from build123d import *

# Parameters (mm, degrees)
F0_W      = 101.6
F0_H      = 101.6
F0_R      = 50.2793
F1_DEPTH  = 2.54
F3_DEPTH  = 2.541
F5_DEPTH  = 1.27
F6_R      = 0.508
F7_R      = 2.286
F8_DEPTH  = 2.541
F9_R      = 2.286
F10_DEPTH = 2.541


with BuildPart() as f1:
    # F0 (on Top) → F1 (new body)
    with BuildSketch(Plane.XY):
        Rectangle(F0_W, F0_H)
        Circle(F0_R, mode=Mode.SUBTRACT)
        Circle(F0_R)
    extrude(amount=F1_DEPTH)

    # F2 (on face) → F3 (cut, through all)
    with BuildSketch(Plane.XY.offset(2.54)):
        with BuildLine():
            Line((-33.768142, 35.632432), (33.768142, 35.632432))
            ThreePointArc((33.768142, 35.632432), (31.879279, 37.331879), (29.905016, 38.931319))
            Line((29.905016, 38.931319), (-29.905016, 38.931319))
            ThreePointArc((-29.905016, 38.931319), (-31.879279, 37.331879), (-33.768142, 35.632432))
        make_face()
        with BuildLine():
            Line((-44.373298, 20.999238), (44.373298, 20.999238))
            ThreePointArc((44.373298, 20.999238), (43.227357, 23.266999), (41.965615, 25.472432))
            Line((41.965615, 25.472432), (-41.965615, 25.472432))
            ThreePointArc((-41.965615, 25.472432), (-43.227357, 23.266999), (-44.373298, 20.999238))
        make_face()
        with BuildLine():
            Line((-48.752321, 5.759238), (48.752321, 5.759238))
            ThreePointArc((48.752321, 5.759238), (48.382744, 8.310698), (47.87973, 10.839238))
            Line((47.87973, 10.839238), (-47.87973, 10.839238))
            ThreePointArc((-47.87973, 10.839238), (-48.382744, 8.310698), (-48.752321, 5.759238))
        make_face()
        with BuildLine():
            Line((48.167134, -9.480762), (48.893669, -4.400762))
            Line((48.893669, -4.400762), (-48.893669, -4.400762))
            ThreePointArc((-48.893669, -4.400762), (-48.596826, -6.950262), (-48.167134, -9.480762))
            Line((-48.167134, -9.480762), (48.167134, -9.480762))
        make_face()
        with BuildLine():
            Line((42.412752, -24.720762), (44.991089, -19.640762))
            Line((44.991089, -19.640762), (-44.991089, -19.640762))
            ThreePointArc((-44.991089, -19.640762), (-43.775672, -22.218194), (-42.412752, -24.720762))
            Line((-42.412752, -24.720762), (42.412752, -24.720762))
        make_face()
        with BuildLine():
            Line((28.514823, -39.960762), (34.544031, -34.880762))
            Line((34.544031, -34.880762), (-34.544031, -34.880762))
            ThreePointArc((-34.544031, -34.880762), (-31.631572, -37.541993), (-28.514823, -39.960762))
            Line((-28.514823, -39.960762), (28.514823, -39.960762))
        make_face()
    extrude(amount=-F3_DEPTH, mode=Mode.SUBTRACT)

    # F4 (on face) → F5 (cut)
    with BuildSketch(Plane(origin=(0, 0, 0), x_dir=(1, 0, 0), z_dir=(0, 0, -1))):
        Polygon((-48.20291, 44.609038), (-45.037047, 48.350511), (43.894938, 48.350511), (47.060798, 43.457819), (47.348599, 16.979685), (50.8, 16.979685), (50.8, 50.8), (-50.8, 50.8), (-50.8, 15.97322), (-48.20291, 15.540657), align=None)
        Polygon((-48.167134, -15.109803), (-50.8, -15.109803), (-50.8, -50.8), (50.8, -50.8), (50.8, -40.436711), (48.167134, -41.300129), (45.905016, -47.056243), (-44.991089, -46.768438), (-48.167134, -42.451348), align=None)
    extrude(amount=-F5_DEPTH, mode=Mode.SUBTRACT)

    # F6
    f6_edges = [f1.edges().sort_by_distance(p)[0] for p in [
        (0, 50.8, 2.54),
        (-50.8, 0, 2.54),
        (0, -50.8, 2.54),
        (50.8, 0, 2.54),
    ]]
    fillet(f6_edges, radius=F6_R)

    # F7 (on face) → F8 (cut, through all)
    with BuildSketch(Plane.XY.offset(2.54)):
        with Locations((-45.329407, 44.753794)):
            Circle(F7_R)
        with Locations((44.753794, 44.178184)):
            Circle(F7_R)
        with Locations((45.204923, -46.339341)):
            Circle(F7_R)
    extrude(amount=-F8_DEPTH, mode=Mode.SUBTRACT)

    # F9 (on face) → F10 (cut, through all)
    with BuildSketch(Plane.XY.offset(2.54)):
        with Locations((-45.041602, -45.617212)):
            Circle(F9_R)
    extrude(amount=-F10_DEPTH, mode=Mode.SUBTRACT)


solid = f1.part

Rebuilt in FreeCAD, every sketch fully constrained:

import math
import FreeCAD as App
import Part
import Sketcher
from FreeCAD import Vector
Q = App.Units.Quantity


def edges_at(feature, points):
    """Names of the edges that pass closest to the given points."""
    edges = feature.Shape.Edges
    near = lambda p: min(range(len(edges)), key=lambda i: edges[i].distToShape(Part.Vertex(*p))[0])
    return sorted({f"Edge{near(p) + 1}" for p in points})

doc = App.newDocument("Part")
body = doc.addObject("PartDesign::Body", "Body")

sketch1 = body.newObject("Sketcher::SketchObject", "Sketch")
sketch1.AttachmentSupport = (doc.getObject("XY_Plane"), [""])
sketch1.MapMode = "FlatFace"
sketch1.addGeometry([
    Part.LineSegment(Vector(-51, 51, 0), Vector(-51, -51, 0)),
    Part.LineSegment(Vector(-51, -51, 0), Vector(51, -51, 0)),
    Part.LineSegment(Vector(51, -51, 0), Vector(51, 51, 0)),
    Part.LineSegment(Vector(51, 51, 0), Vector(-51, 51, 0)),
], False)
sketch1.addConstraint([
    Sketcher.Constraint("Coincident", 0, 2, 1, 1),
    Sketcher.Constraint("Coincident", 1, 2, 2, 1),
    Sketcher.Constraint("Coincident", 2, 2, 3, 1),
    Sketcher.Constraint("Coincident", 3, 2, 0, 1),
    Sketcher.Constraint("Vertical", 0),
    Sketcher.Constraint("Horizontal", 1),
    Sketcher.Constraint("Vertical", 2),
    Sketcher.Constraint("Horizontal", 3),
    Sketcher.Constraint("Symmetric", 0, 2, 2, 2, -1, 1),
    Sketcher.Constraint("Equal", 3, 0),
    Sketcher.Constraint("DistanceX", 1, 1, 1, 2, Q("4 in")),
])
pad1 = body.newObject("PartDesign::Pad", "Pad")
pad1.Profile = sketch1
pad1.Length = Q("0.1 in")

sketch2 = body.newObject("Sketcher::SketchObject", "Sketch001")
sketch2.AttachmentSupport = (doc.getObject("XY_Plane"), [""])
sketch2.MapMode = "FlatFace"
sketch2.AttachmentOffset = App.Placement(Vector(0, 0, 0.1 * 25.4), App.Rotation())
sketch2.addGeometry([
    Part.LineSegment(Vector(-33.768142, 35.632432, 0), Vector(33.768142, 35.632432, 0)),
    Part.ArcOfCircle(Part.Circle(Vector(0.000085, 0.000093, 0), Vector(0, 0, 1), 49.091194), math.radians(46.538749), math.radians(52.470415)),
    Part.LineSegment(Vector(29.905016, 38.931319, 0), Vector(-29.905016, 38.931319, 0)),
    Part.ArcOfCircle(Part.Circle(Vector(-0.000085, 0.000093, 0), Vector(0, 0, 1), 49.091194), math.radians(127.529585), math.radians(133.461251)),
    Part.LineSegment(Vector(-44.373298, 20.999238, 0), Vector(44.373298, 20.999238, 0)),
    Part.ArcOfCircle(Part.Circle(Vector(0.000215, 0.000123, 0), Vector(0, 0, 1), 49.091072), math.radians(25.325383), math.radians(31.257064)),
    Part.LineSegment(Vector(41.965615, 25.472432, 0), Vector(-41.965615, 25.472432, 0)),
    Part.ArcOfCircle(Part.Circle(Vector(-0.000215, 0.000123, 0), Vector(0, 0, 1), 49.091072), math.radians(148.742936), math.radians(154.674617)),
    Part.LineSegment(Vector(-48.752321, 5.759238, 0), Vector(48.752321, 5.759238, 0)),
    Part.ArcOfCircle(Part.Circle(Vector(-0.000051, -0.000009, 0), Vector(0, 0, 1), 49.091371), math.radians(6.737278), math.radians(12.755872)),
    Part.LineSegment(Vector(47.87973, 10.839238, 0), Vector(-47.87973, 10.839238, 0)),
    Part.ArcOfCircle(Part.Circle(Vector(0.000051, -0.000009, 0), Vector(0, 0, 1), 49.091371), math.radians(167.244128), math.radians(173.262722)),
    Part.LineSegment(Vector(48.167134, -9.480762, 0), Vector(48.893669, -4.400762, 0)),
    Part.LineSegment(Vector(48.893669, -4.400762, 0), Vector(-48.893669, -4.400762, 0)),
    Part.ArcOfCircle(Part.Circle(Vector(-0.000213, -0.000037, 0), Vector(0, 0, 1), 49.091103), math.radians(-174.856871), math.radians(-168.864782)),
    Part.LineSegment(Vector(-48.167134, -9.480762, 0), Vector(48.167134, -9.480762, 0)),
    Part.LineSegment(Vector(42.412752, -24.720762, 0), Vector(44.991089, -19.640762, 0)),
    Part.LineSegment(Vector(44.991089, -19.640762, 0), Vector(-44.991089, -19.640762, 0)),
    Part.ArcOfCircle(Part.Circle(Vector(0.000054, 0.000029, 0), Vector(0, 0, 1), 49.09138), math.radians(-156.416424), math.radians(-149.763738)),
    Part.LineSegment(Vector(-42.412752, -24.720762, 0), Vector(42.412752, -24.720762, 0)),
    Part.LineSegment(Vector(28.514823, -39.960762, 0), Vector(34.544031, -34.880762, 0)),
    Part.LineSegment(Vector(34.544031, -34.880762, 0), Vector(-34.544031, -34.880762, 0)),
    Part.ArcOfCircle(Part.Circle(Vector(0.000096, 0.000114, 0), Vector(0, 0, 1), 49.091468), math.radians(-134.722086), math.radians(-125.51055)),
    Part.LineSegment(Vector(-28.514823, -39.960762, 0), Vector(28.514823, -39.960762, 0)),
], False)
sketch2.addConstraint([
    Sketcher.Constraint("Coincident", 0, 2, 1, 1),
    Sketcher.Constraint("Coincident", 1, 2, 2, 1),
    Sketcher.Constraint("Coincident", 2, 2, 3, 1),
    Sketcher.Constraint("Coincident", 3, 2, 0, 1),
    Sketcher.Constraint("Coincident", 4, 2, 5, 1),
    Sketcher.Constraint("Coincident", 5, 2, 6, 1),
    Sketcher.Constraint("Coincident", 6, 2, 7, 1),
    Sketcher.Constraint("Coincident", 7, 2, 4, 1),
    Sketcher.Constraint("Coincident", 8, 2, 9, 1),
    Sketcher.Constraint("Coincident", 9, 2, 10, 1),
    Sketcher.Constraint("Coincident", 10, 2, 11, 1),
    Sketcher.Constraint("Coincident", 11, 2, 8, 1),
    Sketcher.Constraint("Coincident", 12, 2, 13, 1),
    Sketcher.Constraint("Coincident", 13, 2, 14, 1),
    Sketcher.Constraint("Coincident", 14, 2, 15, 1),
    Sketcher.Constraint("Coincident", 15, 2, 12, 1),
    Sketcher.Constraint("Coincident", 16, 2, 17, 1),
    Sketcher.Constraint("Coincident", 17, 2, 18, 1),
    Sketcher.Constraint("Coincident", 18, 2, 19, 1),
    Sketcher.Constraint("Coincident", 19, 2, 16, 1),
    Sketcher.Constraint("Coincident", 20, 2, 21, 1),
    Sketcher.Constraint("Coincident", 21, 2, 22, 1),
    Sketcher.Constraint("Coincident", 22, 2, 23, 1),
    Sketcher.Constraint("Coincident", 23, 2, 20, 1),
    Sketcher.Constraint("Horizontal", 0),
    Sketcher.Constraint("Horizontal", 2),
    Sketcher.Constraint("Horizontal", 4),
    Sketcher.Constraint("Horizontal", 6),
    Sketcher.Constraint("Horizontal", 8),
    Sketcher.Constraint("Horizontal", 10),
    Sketcher.Constraint("Horizontal", 13),
    Sketcher.Constraint("Horizontal", 15),
    Sketcher.Constraint("Horizontal", 17),
    Sketcher.Constraint("Horizontal", 19),
    Sketcher.Constraint("Horizontal", 21),
    Sketcher.Constraint("Horizontal", 23),
    Sketcher.Constraint("Equal", 1, 3),
    Sketcher.Constraint("Equal", 5, 7),
    Sketcher.Constraint("Equal", 9, 11),
    Sketcher.Constraint("Symmetric", 1, 3, 3, 3, -2),
    Sketcher.Constraint("Symmetric", 5, 3, 7, 3, -2),
    Sketcher.Constraint("Symmetric", 9, 3, 11, 3, -2),
    Sketcher.Constraint("DistanceY", 12, 2, 4, 2, Q("1 in")),
    Sketcher.Constraint("DistanceY", 16, 2, 8, 2, Q("1 in")),
    Sketcher.Constraint("DistanceY", 20, 2, 15, 2, Q("1 in")),
    Sketcher.Constraint("DistanceY", 5, 2, 0, 2, Q("0.4 in")),
    Sketcher.Constraint("DistanceY", 8, 2, 4, 2, Q("0.6 in")),
    Sketcher.Constraint("DistanceY", 8, 2, 9, 2, Q("0.2 in")),
    Sketcher.Constraint("DistanceY", 14, 2, 13, 2, Q("0.2 in")),
    Sketcher.Constraint("DistanceY", 18, 2, 17, 2, Q("0.2 in")),
    Sketcher.Constraint("DistanceY", 22, 2, 21, 2, Q("0.2 in")),
    Sketcher.Constraint("Radius", 9, 49.091371),
    Sketcher.Constraint("Radius", 18, 49.09138),
    Sketcher.Constraint("Radius", 1, 49.091194),
    Sketcher.Constraint("Radius", 5, 49.091072),
    Sketcher.Constraint("Radius", 14, 49.091103),
    Sketcher.Constraint("Radius", 22, 49.091468),
    Sketcher.Constraint("DistanceX", 6, 2, 6, 1, 83.93123),
    Sketcher.Constraint("DistanceX", 10, 2, 10, 1, 95.75946),
    Sketcher.Constraint("DistanceX", 13, 2, 13, 1, 97.787338),
    Sketcher.Constraint("DistanceX", 17, 2, 17, 1, 89.982178),
    Sketcher.Constraint("DistanceX", 21, 2, 21, 1, 69.088062),
    Sketcher.Constraint("DistanceX", 7, 2, -1, 1, 44.373298),
    Sketcher.Constraint("DistanceX", 3, 3, 5, 3, 0.0003),
    Sketcher.Constraint("DistanceY", 9, 3, 3, 3, 0.000102),
    Sketcher.Constraint("DistanceX", 5, 3, 1, 2, 29.904801),
    Sketcher.Constraint("DistanceX", 1, 2, 5, 2, 12.060599),
    Sketcher.Constraint("Distance", 12, 5.131691),
    Sketcher.Constraint("Distance", 16, 5.696861),
    Sketcher.Constraint("Distance", 20, 7.884019),
    Sketcher.Constraint("DistanceX", 0, 1, 0, 2, 67.536284),
    Sketcher.Constraint("DistanceX", 15, 1, 15, 2, 96.334268),
    Sketcher.Constraint("DistanceX", 19, 1, 19, 2, 84.825504),
    Sketcher.Constraint("DistanceX", 23, 1, 23, 2, 57.029646),
    Sketcher.Constraint("DistanceY", -1, 1, 1, 2, 38.931319),
    Sketcher.Constraint("DistanceX", -1, 1, 12, 2, 48.893669),
    Sketcher.Constraint("DistanceX", -1, 1, 16, 2, 44.991089),
    Sketcher.Constraint("DistanceX", -1, 1, 20, 2, 34.544031),
])
pocket1 = body.newObject("PartDesign::Pocket", "Pocket")
pocket1.Profile = sketch2
pocket1.Type = "ThroughAll"

sketch3 = body.newObject("Sketcher::SketchObject", "Sketch002")
sketch3.AttachmentSupport = (doc.getObject("XY_Plane"), [""])
sketch3.MapMode = "FlatFace"
sketch3.addGeometry([
    Part.LineSegment(Vector(-48.2, -44.6, 0), Vector(-45, -48.4, 0)),
    Part.LineSegment(Vector(-45, -48.4, 0), Vector(43.9, -48.4, 0)),
    Part.LineSegment(Vector(43.9, -48.4, 0), Vector(47.1, -43.5, 0)),
    Part.LineSegment(Vector(47.1, -43.5, 0), Vector(47.3, -17, 0)),
    Part.LineSegment(Vector(47.3, -17, 0), Vector(50.8, -17, 0)),
    Part.LineSegment(Vector(50.8, -17, 0), Vector(50.8, -50.8, 0)),
    Part.LineSegment(Vector(50.8, -50.8, 0), Vector(-50.8, -50.8, 0)),
    Part.LineSegment(Vector(-50.8, -50.8, 0), Vector(-50.8, -16, 0)),
    Part.LineSegment(Vector(-50.8, -16, 0), Vector(-48.2, -15.5, 0)),
    Part.LineSegment(Vector(-48.2, -15.5, 0), Vector(-48.2, -44.6, 0)),
    Part.LineSegment(Vector(-48.2, 15.1, 0), Vector(-50.8, 15.1, 0)),
    Part.LineSegment(Vector(-50.8, 15.1, 0), Vector(-50.8, 50.8, 0)),
    Part.LineSegment(Vector(-50.8, 50.8, 0), Vector(50.8, 50.8, 0)),
    Part.LineSegment(Vector(50.8, 50.8, 0), Vector(50.8, 40.4, 0)),
    Part.LineSegment(Vector(50.8, 40.4, 0), Vector(48.2, 41.3, 0)),
    Part.LineSegment(Vector(48.2, 41.3, 0), Vector(45.9, 47.1, 0)),
    Part.LineSegment(Vector(45.9, 47.1, 0), Vector(-45, 46.8, 0)),
    Part.LineSegment(Vector(-45, 46.8, 0), Vector(-48.2, 42.5, 0)),
    Part.LineSegment(Vector(-48.2, 42.5, 0), Vector(-48.2, 15.1, 0)),
], False)
sketch3.addConstraint([
    Sketcher.Constraint("Coincident", 0, 2, 1, 1),
    Sketcher.Constraint("Coincident", 1, 2, 2, 1),
    Sketcher.Constraint("Coincident", 2, 2, 3, 1),
    Sketcher.Constraint("Coincident", 3, 2, 4, 1),
    Sketcher.Constraint("Coincident", 4, 2, 5, 1),
    Sketcher.Constraint("Coincident", 5, 2, 6, 1),
    Sketcher.Constraint("Coincident", 6, 2, 7, 1),
    Sketcher.Constraint("Coincident", 7, 2, 8, 1),
    Sketcher.Constraint("Coincident", 8, 2, 9, 1),
    Sketcher.Constraint("Coincident", 9, 2, 0, 1),
    Sketcher.Constraint("Coincident", 10, 2, 11, 1),
    Sketcher.Constraint("Coincident", 11, 2, 12, 1),
    Sketcher.Constraint("Coincident", 12, 2, 13, 1),
    Sketcher.Constraint("Coincident", 13, 2, 14, 1),
    Sketcher.Constraint("Coincident", 14, 2, 15, 1),
    Sketcher.Constraint("Coincident", 15, 2, 16, 1),
    Sketcher.Constraint("Coincident", 16, 2, 17, 1),
    Sketcher.Constraint("Coincident", 17, 2, 18, 1),
    Sketcher.Constraint("Coincident", 18, 2, 10, 1),
    Sketcher.Constraint("Horizontal", 1),
    Sketcher.Constraint("Horizontal", 4),
    Sketcher.Constraint("Vertical", 5),
    Sketcher.Constraint("Horizontal", 6),
    Sketcher.Constraint("Vertical", 7),
    Sketcher.Constraint("Vertical", 9),
    Sketcher.Constraint("Horizontal", 10),
    Sketcher.Constraint("Vertical", 11),
    Sketcher.Constraint("Horizontal", 12),
    Sketcher.Constraint("Vertical", 13),
    Sketcher.Constraint("Vertical", 18),
    Sketcher.Constraint("Symmetric", 5, 2, 11, 2, -1, 1),
    Sketcher.Constraint("Vertical", 7, 2, 10, 2),
    Sketcher.Constraint("Vertical", 5, 2, 12, 2),
    Sketcher.Constraint("DistanceX", 6, 2, 6, 1, Q("4 in")),
    Sketcher.Constraint("DistanceY", 5, 2, -1, 1, Q("2 in")),
    Sketcher.Constraint("DistanceX", 4, 1, 4, 2, 3.451401),
    Sketcher.Constraint("Distance", 3, 26.479698),
    Sketcher.Constraint("DistanceY", 7, 1, 7, 2, 34.82678),
    Sketcher.Constraint("DistanceY", 9, 2, 9, 1, 29.068381),
    Sketcher.Constraint("DistanceY", 13, 2, 13, 1, 10.363289),
    Sketcher.Constraint("DistanceX", 2, 2, 3, 2, 0.287801),
    Sketcher.Constraint("Distance", 15, 6.184661),
    Sketcher.Constraint("Distance", 16, 90.896561),
    Sketcher.Constraint("DistanceX", 1, 1, 1, 2, 88.931985),
    Sketcher.Constraint("DistanceX", 10, 2, 10, 1, 2.632866),
    Sketcher.Constraint("DistanceY", 5, 2, 5, 1, 33.820315),
    Sketcher.Constraint("DistanceY", 11, 1, 11, 2, 35.690197),
    Sketcher.Constraint("DistanceY", 18, 2, 18, 1, 27.341545),
    Sketcher.Constraint("DistanceY", 0, 2, -1, 1, 48.350511),
    Sketcher.Constraint("DistanceX", -1, 1, 1, 2, 43.894938),
    Sketcher.Constraint("DistanceX", 8, 2, -1, 1, 48.20291),
    Sketcher.Constraint("DistanceY", -1, 1, 14, 2, 41.300129),
    Sketcher.Constraint("DistanceX", 16, 2, -1, 1, 44.991089),
    Sketcher.Constraint("DistanceY", -1, 1, 16, 2, 46.768438),
    Sketcher.Constraint("DistanceY", 3, 2, 8, 2, 1.439028),
    Sketcher.Constraint("DistanceY", 13, 2, 15, 2, 6.619532),
])
pocket2 = body.newObject("PartDesign::Pocket", "Pocket001")
pocket2.Profile = sketch3
pocket2.Length = Q("0.05 in")
pocket2.Reversed = True
doc.recompute()

fillet = body.newObject("PartDesign::Fillet", "Fillet")
fillet.Base = (pocket2, edges_at(pocket2, [
    (0, 50.8, 2.54),
    (-50.8, 0, 2.54),
    (0, -50.8, 2.54),
    (50.8, 0, 2.54),
]))
fillet.Radius = Q("0.02 in")

sketch4 = body.newObject("Sketcher::SketchObject", "Sketch003")
sketch4.AttachmentSupport = (doc.getObject("XY_Plane"), [""])
sketch4.MapMode = "FlatFace"
sketch4.AttachmentOffset = App.Placement(Vector(0, 0, 0.1 * 25.4), App.Rotation())
sketch4.addGeometry([
    Part.Circle(Vector(-45.3, 44.8, 0), Vector(0, 0, 1), 2.3),
    Part.Circle(Vector(44.8, 44.2, 0), Vector(0, 0, 1), 2.3),
    Part.Circle(Vector(45.2, -46.3, 0), Vector(0, 0, 1), 2.3),
], False)
sketch4.addConstraint([
    Sketcher.Constraint("Equal", 0, 1),
    Sketcher.Constraint("Equal", 1, 2),
    Sketcher.Constraint("Diameter", 0, Q("0.18 in")),
    Sketcher.Constraint("DistanceX", 0, 3, 1, 3, 90.083201),
    Sketcher.Constraint("DistanceY", 2, 3, -1, 1, 46.339341),
    Sketcher.Constraint("DistanceY", 1, 3, 0, 3, 0.57561),
    Sketcher.Constraint("DistanceX", 1, 3, 2, 3, 0.451129),
    Sketcher.Constraint("DistanceX", 0, 3, -1, 1, 45.329407),
    Sketcher.Constraint("DistanceY", -1, 1, 0, 3, 44.753794),
])
pocket3 = body.newObject("PartDesign::Pocket", "Pocket002")
pocket3.Profile = sketch4
pocket3.Type = "ThroughAll"

sketch5 = body.newObject("Sketcher::SketchObject", "Sketch004")
sketch5.AttachmentSupport = (doc.getObject("XY_Plane"), [""])
sketch5.MapMode = "FlatFace"
sketch5.AttachmentOffset = App.Placement(Vector(0, 0, 0.1 * 25.4), App.Rotation())
sketch5.addGeometry(Part.Circle(Vector(-45, -45.6, 0), Vector(0, 0, 1), 2.3), False)
sketch5.addConstraint([
    Sketcher.Constraint("Diameter", 0, Q("0.18 in")),
    Sketcher.Constraint("DistanceX", 0, 3, -1, 1, 45.041602),
    Sketcher.Constraint("DistanceY", 0, 3, -1, 1, 45.617212),
])
pocket4 = body.newObject("PartDesign::Pocket", "Pocket003")
pocket4.Profile = sketch5
pocket4.Type = "ThroughAll"

doc.recompute()
